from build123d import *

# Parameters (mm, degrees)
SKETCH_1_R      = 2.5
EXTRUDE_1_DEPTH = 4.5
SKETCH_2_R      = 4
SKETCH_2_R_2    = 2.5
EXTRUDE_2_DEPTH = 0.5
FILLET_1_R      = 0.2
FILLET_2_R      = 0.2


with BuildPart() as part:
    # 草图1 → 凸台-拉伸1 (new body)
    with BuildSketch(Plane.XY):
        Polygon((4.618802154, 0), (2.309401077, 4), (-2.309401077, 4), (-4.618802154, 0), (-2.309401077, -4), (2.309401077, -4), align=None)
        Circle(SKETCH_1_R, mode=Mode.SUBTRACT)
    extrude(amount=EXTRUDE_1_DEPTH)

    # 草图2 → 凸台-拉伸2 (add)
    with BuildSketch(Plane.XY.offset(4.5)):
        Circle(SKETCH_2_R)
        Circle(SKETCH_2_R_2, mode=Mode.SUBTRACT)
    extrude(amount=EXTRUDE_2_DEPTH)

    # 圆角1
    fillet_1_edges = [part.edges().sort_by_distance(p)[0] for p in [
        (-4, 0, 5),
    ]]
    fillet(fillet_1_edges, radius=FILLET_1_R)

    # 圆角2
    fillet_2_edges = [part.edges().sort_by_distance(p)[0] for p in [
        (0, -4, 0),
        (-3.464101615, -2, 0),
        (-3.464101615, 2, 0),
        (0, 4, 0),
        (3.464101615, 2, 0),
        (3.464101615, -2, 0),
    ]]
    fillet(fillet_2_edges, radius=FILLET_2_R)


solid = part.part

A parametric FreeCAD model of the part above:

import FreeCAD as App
import Part
import Sketcher
Q = App.Units.Quantity


def edges_at(feature, points):
    """Names of the edges that pass closest to the given points."""
    edges = feature.Shape.Edges
    near = lambda p: min(range(len(edges)), key=lambda i: edges[i].distToShape(Part.Vertex(*p))[0])
    return sorted({f"Edge{near(p) + 1}" for p in points})


def add_polygon(sketch, points):
    """Adds a closed chain of lines whose ends are joined by coincident constraints."""
    first, n = sketch.GeometryCount, len(points)
    for a, b in zip(points, points[1:] + points[:1]):
        sketch.addGeometry(Part.LineSegment(App.Vector(*a, 0), App.Vector(*b, 0)), False)
    for i in range(n):
        sketch.addConstraint(Sketcher.Constraint("Coincident", first + i, 2, first + (i + 1) % n, 1))

doc = App.newDocument("Part")
body = doc.addObject("PartDesign::Body", "Body")

sketch1 = doc.addObject("Sketcher::SketchObject", "Sketch")
body.addObject(sketch1)
sketch1.AttachmentSupport = (doc.XY_Plane, [""])
sketch1.MapMode = "FlatFace"
add_polygon(sketch1, [(4.6, 0), (2.3, 4), (-2.3, 4), (-4.6, 0), (-2.3, -4), (2.3, -4)])
sketch1.addGeometry(Part.Circle(App.Vector(0, 0, 0), App.Vector(0, 0, 1), 2.5), False)
sketch1.addConstraint(Sketcher.Constraint("Horizontal", 1))
sketch1.addConstraint(Sketcher.Constraint("Horizontal", 4))
sketch1.addConstraint(Sketcher.Constraint("Coincident", 6, 3, -1, 1))
sketch1.addConstraint(Sketcher.Constraint("Symmetric", 0, 2, 3, 2, -1, 1))
sketch1.addConstraint(Sketcher.Constraint("Symmetric", 2, 2, 5, 2, -1, 1))
sketch1.addConstraint(Sketcher.Constraint("PointOnObject", 2, 2, -1))
sketch1.addConstraint(Sketcher.Constraint("Parallel", 2, 5))
sketch1.addConstraint(Sketcher.Constraint("Vertical", 1, 2, 3, 2))
sketch1.addConstraint(Sketcher.Constraint("Diameter", 6, 5.0))
sketch1.addConstraint(Sketcher.Constraint("Angle", 0, Q("120 deg")))
sketch1.addConstraint(Sketcher.Constraint("DistanceY", -1, 1, 0, 2, 4.0))
sketch1.addConstraint(Sketcher.Constraint("DistanceX", -1, 1, 0, 2, 2.309401))
pad1 = doc.addObject("PartDesign::Pad", "Pad")
body.addObject(pad1)
pad1.Profile = sketch1
pad1.Length = 4.5

sketch2 = doc.addObject("Sketcher::SketchObject", "Sketch001")
body.addObject(sketch2)
sketch2.AttachmentSupport = (doc.XY_Plane, [""])
sketch2.MapMode = "FlatFace"
sketch2.AttachmentOffset = App.Placement(App.Vector(0, 0, 4.5), App.Rotation())
sketch2.addGeometry(Part.Circle(App.Vector(0, 0, 0), App.Vector(0, 0, 1), 4), False)
sketch2.addGeometry(Part.Circle(App.Vector(0, 0, 0), App.Vector(0, 0, 1), 2.5), False)
sketch2.addConstraint(Sketcher.Constraint("Coincident", 0, 3, -1, 1))
sketch2.addConstraint(Sketcher.Constraint("Coincident", 1, 3, -1, 1))
sketch2.addConstraint(Sketcher.Constraint("Diameter", 0, 8.0))
sketch2.addConstraint(Sketcher.Constraint("Diameter", 1, 5.0))
pad2 = doc.addObject("PartDesign::Pad", "Pad001")
body.addObject(pad2)
pad2.Profile = sketch2
pad2.Length = 0.5
doc.recompute()

fillet = doc.addObject("PartDesign::Fillet", "Fillet")
body.addObject(fillet)
fillet.Base = (pad2, edges_at(pad2, [(-4, 0, 5)]))
fillet.Radius = 0.2
doc.recompute()

fillet2 = doc.addObject("PartDesign::Fillet", "Fillet001")
body.addObject(fillet2)
fillet2.Base = (fillet, edges_at(fillet, [
    (0, -4, 0),
    (-3.464, -2, 0),
    (-3.464, 2, 0),
    (0, 4, 0),
    (3.464, 2, 0),
    (3.464, -2, 0),
]))
fillet2.Radius = 0.2

doc.recompute()
